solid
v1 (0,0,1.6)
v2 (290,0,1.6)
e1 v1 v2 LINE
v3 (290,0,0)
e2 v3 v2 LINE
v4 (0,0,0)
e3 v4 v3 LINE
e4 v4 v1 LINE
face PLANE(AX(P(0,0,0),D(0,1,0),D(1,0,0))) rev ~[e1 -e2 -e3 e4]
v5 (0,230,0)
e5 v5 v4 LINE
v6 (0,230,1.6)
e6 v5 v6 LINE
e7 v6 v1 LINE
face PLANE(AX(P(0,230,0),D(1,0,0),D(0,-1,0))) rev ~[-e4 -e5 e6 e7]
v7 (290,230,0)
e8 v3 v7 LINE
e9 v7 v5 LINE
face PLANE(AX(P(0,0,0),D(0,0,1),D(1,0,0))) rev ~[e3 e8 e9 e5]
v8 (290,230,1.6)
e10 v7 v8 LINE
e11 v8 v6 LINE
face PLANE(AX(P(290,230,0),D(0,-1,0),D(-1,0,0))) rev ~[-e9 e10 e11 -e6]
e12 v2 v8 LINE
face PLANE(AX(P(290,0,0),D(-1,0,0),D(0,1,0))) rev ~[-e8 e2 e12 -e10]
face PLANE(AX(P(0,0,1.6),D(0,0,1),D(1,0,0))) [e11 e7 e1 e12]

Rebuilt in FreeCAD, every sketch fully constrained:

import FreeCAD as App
import Part
import Sketcher
Q = App.Units.Quantity

doc = App.newDocument("Part")
params = doc.addObject("Spreadsheet::Sheet", "Params")
for row, (alias, value) in enumerate([
    ("sketch1_width", "290 mm"),
    ("sketch1_height", "230 mm"),
    ("pad1_length", "1.6 mm"),
], start=1):
    params.set(f"A{row}", alias)
    params.set(f"B{row}", "=" + value)
    params.setAlias(f"B{row}", alias)

body = doc.addObject("PartDesign::Body", "Body")

# Sketch on XY plane
sketch1 = body.newObject("Sketcher::SketchObject", "Sketch")
sketch1.AttachmentSupport = (doc.getObject("XY_Plane"), [""])
sketch1.MapMode = "FlatFace"
sketch1.addGeometry(Part.LineSegment(App.Vector(0, 230, 0), App.Vector(0, 0, 0)), False)
sketch1.addGeometry(Part.LineSegment(App.Vector(0, 0, 0), App.Vector(290, 0, 0)), False)
sketch1.addGeometry(Part.LineSegment(App.Vector(290, 0, 0), App.Vector(290, 230, 0)), False)
sketch1.addGeometry(Part.LineSegment(App.Vector(290, 230, 0), App.Vector(0, 230, 0)), False)
sketch1.addConstraint(Sketcher.Constraint("Coincident", 0, 2, 1, 1))
sketch1.addConstraint(Sketcher.Constraint("Coincident", 1, 2, 2, 1))
sketch1.addConstraint(Sketcher.Constraint("Coincident", 2, 2, 3, 1))
sketch1.addConstraint(Sketcher.Constraint("Coincident", 3, 2, 0, 1))
sketch1.addConstraint(Sketcher.Constraint("Vertical", 0))
sketch1.addConstraint(Sketcher.Constraint("Horizontal", 1))
sketch1.addConstraint(Sketcher.Constraint("Vertical", 2))
sketch1.addConstraint(Sketcher.Constraint("Horizontal", 3))
sketch1.addConstraint(Sketcher.Constraint("Coincident", 0, 2, -1, 1))
sketch1.addConstraint(Sketcher.Constraint("DistanceX", 1, 1, 1, 2, Q("290 mm")))
sketch1.addConstraint(Sketcher.Constraint("DistanceY", 0, 2, 0, 1, Q("230 mm")))
sketch1.setExpression("Constraints[9]", "Params.sketch1_width")
sketch1.setExpression("Constraints[10]", "Params.sketch1_height")
pad1 = body.newObject("PartDesign::Pad", "Pad")
pad1.Profile = sketch1
pad1.setExpression("Length", "Params.pad1_length")

doc.recompute()
